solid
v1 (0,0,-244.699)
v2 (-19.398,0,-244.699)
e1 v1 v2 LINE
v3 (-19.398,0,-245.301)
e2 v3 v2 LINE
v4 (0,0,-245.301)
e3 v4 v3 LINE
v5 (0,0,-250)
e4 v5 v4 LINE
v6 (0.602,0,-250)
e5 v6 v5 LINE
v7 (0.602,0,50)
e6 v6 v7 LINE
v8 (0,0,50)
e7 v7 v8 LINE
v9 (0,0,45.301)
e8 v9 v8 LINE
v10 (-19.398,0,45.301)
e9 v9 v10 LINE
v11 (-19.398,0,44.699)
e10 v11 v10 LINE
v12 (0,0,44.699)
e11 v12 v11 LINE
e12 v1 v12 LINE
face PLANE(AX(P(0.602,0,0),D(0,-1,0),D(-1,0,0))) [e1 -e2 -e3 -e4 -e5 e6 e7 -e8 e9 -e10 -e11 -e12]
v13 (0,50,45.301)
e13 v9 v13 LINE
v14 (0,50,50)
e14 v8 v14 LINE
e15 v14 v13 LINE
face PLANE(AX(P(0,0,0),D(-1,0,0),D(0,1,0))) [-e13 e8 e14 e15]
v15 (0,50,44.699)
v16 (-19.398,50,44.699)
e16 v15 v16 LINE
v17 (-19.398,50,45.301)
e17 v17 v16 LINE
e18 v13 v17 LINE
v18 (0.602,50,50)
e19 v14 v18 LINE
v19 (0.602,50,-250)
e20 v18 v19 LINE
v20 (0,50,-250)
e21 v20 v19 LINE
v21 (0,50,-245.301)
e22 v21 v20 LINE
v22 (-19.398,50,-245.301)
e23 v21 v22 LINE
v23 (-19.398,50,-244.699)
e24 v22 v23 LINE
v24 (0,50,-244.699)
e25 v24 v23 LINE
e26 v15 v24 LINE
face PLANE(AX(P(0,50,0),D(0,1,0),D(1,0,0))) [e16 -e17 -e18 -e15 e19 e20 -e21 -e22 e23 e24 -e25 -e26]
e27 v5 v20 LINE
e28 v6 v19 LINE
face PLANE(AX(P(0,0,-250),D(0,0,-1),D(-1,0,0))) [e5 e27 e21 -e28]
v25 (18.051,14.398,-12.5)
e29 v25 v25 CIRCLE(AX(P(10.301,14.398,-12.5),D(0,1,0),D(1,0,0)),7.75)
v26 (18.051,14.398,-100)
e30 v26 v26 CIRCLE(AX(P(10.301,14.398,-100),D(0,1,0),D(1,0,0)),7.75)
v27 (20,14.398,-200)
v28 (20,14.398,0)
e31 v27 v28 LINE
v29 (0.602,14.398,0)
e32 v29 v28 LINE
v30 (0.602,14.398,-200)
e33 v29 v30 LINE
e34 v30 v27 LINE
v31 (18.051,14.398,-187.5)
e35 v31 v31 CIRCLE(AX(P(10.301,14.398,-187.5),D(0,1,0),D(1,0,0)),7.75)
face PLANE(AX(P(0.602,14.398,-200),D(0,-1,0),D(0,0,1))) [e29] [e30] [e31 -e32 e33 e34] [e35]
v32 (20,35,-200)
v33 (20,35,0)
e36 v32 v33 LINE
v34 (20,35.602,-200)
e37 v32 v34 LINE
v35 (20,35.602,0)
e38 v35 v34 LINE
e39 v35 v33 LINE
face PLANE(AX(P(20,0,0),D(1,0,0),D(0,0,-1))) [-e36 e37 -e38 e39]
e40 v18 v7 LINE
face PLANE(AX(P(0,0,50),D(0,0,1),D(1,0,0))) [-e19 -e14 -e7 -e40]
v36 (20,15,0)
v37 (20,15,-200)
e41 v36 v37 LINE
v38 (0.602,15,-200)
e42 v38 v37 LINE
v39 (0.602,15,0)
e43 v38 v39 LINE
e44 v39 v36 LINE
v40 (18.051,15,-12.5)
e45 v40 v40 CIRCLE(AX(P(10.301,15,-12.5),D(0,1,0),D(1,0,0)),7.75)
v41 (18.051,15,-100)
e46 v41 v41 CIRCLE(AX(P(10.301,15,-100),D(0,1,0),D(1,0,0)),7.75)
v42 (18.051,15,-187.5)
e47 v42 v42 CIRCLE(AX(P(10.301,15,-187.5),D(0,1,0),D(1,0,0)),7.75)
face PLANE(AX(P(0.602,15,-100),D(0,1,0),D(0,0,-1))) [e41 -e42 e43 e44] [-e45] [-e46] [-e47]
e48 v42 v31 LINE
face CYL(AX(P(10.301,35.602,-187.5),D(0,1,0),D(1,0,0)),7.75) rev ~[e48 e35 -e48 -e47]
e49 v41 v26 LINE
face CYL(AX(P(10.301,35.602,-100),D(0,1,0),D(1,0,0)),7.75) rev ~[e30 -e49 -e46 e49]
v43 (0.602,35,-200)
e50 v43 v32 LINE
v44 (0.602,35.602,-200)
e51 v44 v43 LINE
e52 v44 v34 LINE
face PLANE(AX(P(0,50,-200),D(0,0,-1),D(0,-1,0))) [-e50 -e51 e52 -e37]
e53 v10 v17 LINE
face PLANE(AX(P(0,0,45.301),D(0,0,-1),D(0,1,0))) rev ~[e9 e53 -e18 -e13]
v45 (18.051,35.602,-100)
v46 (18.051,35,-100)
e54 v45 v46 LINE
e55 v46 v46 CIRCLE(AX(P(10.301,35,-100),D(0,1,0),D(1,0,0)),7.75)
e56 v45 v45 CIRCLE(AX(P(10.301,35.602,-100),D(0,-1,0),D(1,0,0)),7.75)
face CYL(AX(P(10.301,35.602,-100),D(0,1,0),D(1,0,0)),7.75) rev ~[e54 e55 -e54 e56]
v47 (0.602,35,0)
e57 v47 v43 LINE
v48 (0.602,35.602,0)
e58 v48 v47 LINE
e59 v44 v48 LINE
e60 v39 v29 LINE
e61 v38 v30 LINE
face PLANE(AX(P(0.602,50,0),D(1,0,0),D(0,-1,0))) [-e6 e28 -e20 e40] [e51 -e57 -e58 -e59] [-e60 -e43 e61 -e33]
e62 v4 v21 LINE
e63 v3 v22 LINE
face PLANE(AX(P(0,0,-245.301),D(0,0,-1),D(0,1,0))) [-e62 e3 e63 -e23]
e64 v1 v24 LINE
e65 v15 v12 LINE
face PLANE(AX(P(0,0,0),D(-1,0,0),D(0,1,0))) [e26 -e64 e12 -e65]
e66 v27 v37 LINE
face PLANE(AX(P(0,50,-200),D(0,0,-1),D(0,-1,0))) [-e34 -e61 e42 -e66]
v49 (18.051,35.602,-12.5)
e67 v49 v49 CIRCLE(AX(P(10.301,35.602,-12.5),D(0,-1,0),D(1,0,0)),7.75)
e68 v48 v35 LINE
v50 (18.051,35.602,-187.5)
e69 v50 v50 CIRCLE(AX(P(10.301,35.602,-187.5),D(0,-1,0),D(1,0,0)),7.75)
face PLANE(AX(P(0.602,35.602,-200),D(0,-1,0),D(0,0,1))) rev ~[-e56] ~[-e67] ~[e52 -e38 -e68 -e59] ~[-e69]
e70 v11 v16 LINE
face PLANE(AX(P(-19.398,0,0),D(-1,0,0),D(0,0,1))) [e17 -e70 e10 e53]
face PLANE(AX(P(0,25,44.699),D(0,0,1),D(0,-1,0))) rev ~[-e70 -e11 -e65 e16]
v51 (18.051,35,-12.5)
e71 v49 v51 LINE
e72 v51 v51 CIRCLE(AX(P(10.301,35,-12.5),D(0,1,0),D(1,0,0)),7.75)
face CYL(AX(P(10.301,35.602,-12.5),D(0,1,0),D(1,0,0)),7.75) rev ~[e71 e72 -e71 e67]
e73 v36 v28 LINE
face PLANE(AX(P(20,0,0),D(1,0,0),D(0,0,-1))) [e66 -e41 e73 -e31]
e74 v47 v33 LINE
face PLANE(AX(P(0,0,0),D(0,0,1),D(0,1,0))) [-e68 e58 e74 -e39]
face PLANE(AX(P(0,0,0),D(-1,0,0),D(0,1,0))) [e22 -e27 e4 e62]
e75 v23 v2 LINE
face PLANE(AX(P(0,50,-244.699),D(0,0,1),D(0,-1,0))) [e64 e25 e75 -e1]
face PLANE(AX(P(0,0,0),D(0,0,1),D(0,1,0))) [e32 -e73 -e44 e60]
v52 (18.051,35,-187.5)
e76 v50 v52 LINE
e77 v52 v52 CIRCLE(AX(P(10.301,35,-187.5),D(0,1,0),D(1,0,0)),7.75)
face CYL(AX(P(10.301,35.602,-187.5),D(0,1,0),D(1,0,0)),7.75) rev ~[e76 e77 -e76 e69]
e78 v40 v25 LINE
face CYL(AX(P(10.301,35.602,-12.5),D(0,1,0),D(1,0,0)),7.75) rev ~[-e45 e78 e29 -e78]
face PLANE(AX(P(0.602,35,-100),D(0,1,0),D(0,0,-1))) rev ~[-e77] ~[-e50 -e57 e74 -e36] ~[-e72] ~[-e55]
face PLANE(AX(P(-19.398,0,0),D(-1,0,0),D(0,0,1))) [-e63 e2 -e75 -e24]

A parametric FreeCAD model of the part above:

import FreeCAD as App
import Part
import Sketcher
from FreeCAD import Vector
Q = App.Units.Quantity


def add_polygon(sketch, points):
    """Adds a closed chain of lines whose ends are joined by coincident constraints."""
    first, n = sketch.GeometryCount, len(points)
    for a, b in zip(points, points[1:] + points[:1]):
        sketch.addGeometry(Part.LineSegment(App.Vector(*a, 0), App.Vector(*b, 0)), False)
    for i in range(n):
        sketch.addConstraint(Sketcher.Constraint("Coincident", first + i, 2, first + (i + 1) % n, 1))

doc = App.newDocument("Part")
body = doc.addObject("PartDesign::Body", "Body")

sketch1 = body.newObject("Sketcher::SketchObject", "Sketch")
sketch1.AttachmentSupport = (doc.getObject("YZ_Plane"), [""])
sketch1.MapMode = "FlatFace"
add_polygon(sketch1, [(50, 0), (0, 0), (0, -200), (50, -200)])
sketch1.addConstraint(Sketcher.Constraint("Horizontal", 0))
sketch1.addConstraint(Sketcher.Constraint("Vertical", 1))
sketch1.addConstraint(Sketcher.Constraint("Horizontal", 2))
sketch1.addConstraint(Sketcher.Constraint("Vertical", 3))
sketch1.addConstraint(Sketcher.Constraint("Coincident", 0, 2, -1, 1))
sketch1.addConstraint(Sketcher.Constraint("DistanceX", 0, 2, 0, 1, Q("50 mm")))
sketch1.addConstraint(Sketcher.Constraint("DistanceY", 1, 2, 1, 1, Q("200 mm")))
pad1 = body.newObject("PartDesign::Pad", "Pad")
pad1.Profile = sketch1
pad1.Length = 0.602

sketch2 = body.newObject("Sketcher::SketchObject", "Sketch001")
sketch2.AttachmentSupport = (doc.getObject("YZ_Plane"), [""])
sketch2.MapMode = "FlatFace"
sketch2.AttachmentOffset = App.Placement(Vector(0, 0, 0.602), App.Rotation())
add_polygon(sketch2, [(35, -200), (35.6, -200), (35.6, 0), (35, 0)])
add_polygon(sketch2, [(14.4, -200), (15, -200), (15, 0), (14.4, 0)])
sketch2.addConstraint(Sketcher.Constraint("Horizontal", 0))
sketch2.addConstraint(Sketcher.Constraint("Vertical", 1))
sketch2.addConstraint(Sketcher.Constraint("Horizontal", 2))
sketch2.addConstraint(Sketcher.Constraint("Vertical", 3))
sketch2.addConstraint(Sketcher.Constraint("Horizontal", 4))
sketch2.addConstraint(Sketcher.Constraint("Vertical", 5))
sketch2.addConstraint(Sketcher.Constraint("Horizontal", 6))
sketch2.addConstraint(Sketcher.Constraint("Vertical", 7))
sketch2.addConstraint(Sketcher.Constraint("PointOnObject", 1, 2, -1))
sketch2.addConstraint(Sketcher.Constraint("PointOnObject", 5, 2, -1))
sketch2.addConstraint(Sketcher.Constraint("Horizontal", 3, 2, 4, 2))
sketch2.addConstraint(Sketcher.Constraint("Equal", 2, 4))
sketch2.addConstraint(Sketcher.Constraint("DistanceY", 1, 1, 1, 2, Q("200 mm")))
sketch2.addConstraint(Sketcher.Constraint("DistanceX", -1, 1, 4, 2, Q("15 mm")))
sketch2.addConstraint(Sketcher.Constraint("DistanceX", -1, 1, 2, 2, Q("35 mm")))
sketch2.addConstraint(Sketcher.Constraint("DistanceX", 0, 1, 0, 2, Q("0.602 mm")))
pad2 = body.newObject("PartDesign::Pad", "Pad001")
pad2.Profile = sketch2
pad2.Length = 19.398

sketch3 = body.newObject("Sketcher::SketchObject", "Sketch002")
sketch3.AttachmentSupport = (doc.getObject("XZ_Plane"), [""])
sketch3.MapMode = "FlatFace"
sketch3.AttachmentOffset = App.Placement(Vector(0, 0, -35.602), App.Rotation())
sketch3.addGeometry(Part.Circle(Vector(10, -12, 0), Vector(0, 0, 1), 8), False)
sketch3.addGeometry(Part.Circle(Vector(10, -188, 0), Vector(0, 0, 1), 8), False)
sketch3.addGeometry(Part.Circle(Vector(10, -100, 0), Vector(0, 0, 1), 8), False)
sketch3.addConstraint(Sketcher.Constraint("Equal", 0, 1))
sketch3.addConstraint(Sketcher.Constraint("Equal", 1, 2))
sketch3.addConstraint(Sketcher.Constraint("Vertical", 0, 3, 1, 3))
sketch3.addConstraint(Sketcher.Constraint("Vertical", 1, 3, 2, 3))
sketch3.addConstraint(Sketcher.Constraint("Diameter", 0, Q("15.5 mm")))
sketch3.addConstraint(Sketcher.Constraint("DistanceY", 0, 3, -1, 1, Q("12.5 mm")))
sketch3.addConstraint(Sketcher.Constraint("DistanceY", 2, 3, 0, 3, Q("87.5 mm")))
sketch3.addConstraint(Sketcher.Constraint("DistanceY", 1, 3, 2, 3, Q("87.5 mm")))
sketch3.addConstraint(Sketcher.Constraint("DistanceX", -1, 1, 0, 3, Q("10.301 mm")))
pocket1 = body.newObject("PartDesign::Pocket", "Pocket")
pocket1.Profile = sketch3
pocket1.Type = "ThroughAll"
pocket1.Reversed = True

sketch4 = body.newObject("Sketcher::SketchObject", "Sketch003")
sketch4.AttachmentSupport = (doc.getObject("XY_Plane"), [""])
sketch4.MapMode = "FlatFace"
sketch4.AttachmentOffset = App.Placement(Vector(0, 0, -200), App.Rotation())
add_polygon(sketch4, [(0, 50), (0.6, 50), (0.6, 0), (0, 0)])
sketch4.addConstraint(Sketcher.Constraint("Horizontal", 0))
sketch4.addConstraint(Sketcher.Constraint("Vertical", 1))
sketch4.addConstraint(Sketcher.Constraint("Horizontal", 2))
sketch4.addConstraint(Sketcher.Constraint("Vertical", 3))
sketch4.addConstraint(Sketcher.Constraint("Coincident", 2, 2, -1, 1))
sketch4.addConstraint(Sketcher.Constraint("DistanceY", 1, 2, 1, 1, Q("50 mm")))
sketch4.addConstraint(Sketcher.Constraint("DistanceX", 0, 1, 0, 2, Q("0.602 mm")))
pad3 = body.newObject("PartDesign::Pad", "Pad002")
pad3.Profile = sketch4
pad3.Length = 50
pad3.Reversed = True

sketch5 = body.newObject("Sketcher::SketchObject", "Sketch004")
sketch5.AttachmentSupport = (doc.getObject("XY_Plane"), [""])
sketch5.MapMode = "FlatFace"
add_polygon(sketch5, [(0, 50), (0, 0), (0.6, 0), (0.6, 50)])
sketch5.addConstraint(Sketcher.Constraint("Vertical", 0))
sketch5.addConstraint(Sketcher.Constraint("Horizontal", 1))
sketch5.addConstraint(Sketcher.Constraint("Vertical", 2))
sketch5.addConstraint(Sketcher.Constraint("Horizontal", 3))
sketch5.addConstraint(Sketcher.Constraint("Coincident", 0, 2, -1, 1))
sketch5.addConstraint(Sketcher.Constraint("DistanceX", 1, 1, 1, 2, Q("0.602 mm")))
sketch5.addConstraint(Sketcher.Constraint("DistanceY", 0, 2, 0, 1, Q("50 mm")))
pad4 = body.newObject("PartDesign::Pad", "Pad003")
pad4.Profile = sketch5
pad4.Length = 50

sketch6 = body.newObject("Sketcher::SketchObject", "Sketch005")
sketch6.AttachmentSupport = (doc.getObject("YZ_Plane"), [""])
sketch6.MapMode = "FlatFace"
add_polygon(sketch6, [(50, 44.7), (0, 44.7), (0, 45.3), (50, 45.3)])
add_polygon(sketch6, [(0, -245.3), (0, -244.7), (50, -244.7), (50, -245.3)])
sketch6.addConstraint(Sketcher.Constraint("Horizontal", 0))
sketch6.addConstraint(Sketcher.Constraint("Vertical", 1))
sketch6.addConstraint(Sketcher.Constraint("Horizontal", 2))
sketch6.addConstraint(Sketcher.Constraint("Vertical", 3))
sketch6.addConstraint(Sketcher.Constraint("Vertical", 4))
sketch6.addConstraint(Sketcher.Constraint("Horizontal", 5))
sketch6.addConstraint(Sketcher.Constraint("Vertical", 6))
sketch6.addConstraint(Sketcher.Constraint("Horizontal", 7))
sketch6.addConstraint(Sketcher.Constraint("PointOnObject", 0, 2, -2))
sketch6.addConstraint(Sketcher.Constraint("PointOnObject", 4, 2, -2))
sketch6.addConstraint(Sketcher.Constraint("Vertical", 3, 2, 5, 2))
sketch6.addConstraint(Sketcher.Constraint("Equal", 3, 4))
sketch6.addConstraint(Sketcher.Constraint("DistanceX", 0, 2, 0, 1, Q("50 mm")))
sketch6.addConstraint(Sketcher.Constraint("DistanceY", 1, 1, 1, 2, Q("0.602 mm")))
sketch6.addConstraint(Sketcher.Constraint("DistanceY", 4, 2, 1, 2, Q("290 mm")))
sketch6.addConstraint(Sketcher.Constraint("DistanceY", -1, 1, 0, 2, Q("44.699 mm")))
pad5 = body.newObject("PartDesign::Pad", "Pad004")
pad5.Profile = sketch6
pad5.Length = 19.398
pad5.Reversed = True

doc.recompute()
